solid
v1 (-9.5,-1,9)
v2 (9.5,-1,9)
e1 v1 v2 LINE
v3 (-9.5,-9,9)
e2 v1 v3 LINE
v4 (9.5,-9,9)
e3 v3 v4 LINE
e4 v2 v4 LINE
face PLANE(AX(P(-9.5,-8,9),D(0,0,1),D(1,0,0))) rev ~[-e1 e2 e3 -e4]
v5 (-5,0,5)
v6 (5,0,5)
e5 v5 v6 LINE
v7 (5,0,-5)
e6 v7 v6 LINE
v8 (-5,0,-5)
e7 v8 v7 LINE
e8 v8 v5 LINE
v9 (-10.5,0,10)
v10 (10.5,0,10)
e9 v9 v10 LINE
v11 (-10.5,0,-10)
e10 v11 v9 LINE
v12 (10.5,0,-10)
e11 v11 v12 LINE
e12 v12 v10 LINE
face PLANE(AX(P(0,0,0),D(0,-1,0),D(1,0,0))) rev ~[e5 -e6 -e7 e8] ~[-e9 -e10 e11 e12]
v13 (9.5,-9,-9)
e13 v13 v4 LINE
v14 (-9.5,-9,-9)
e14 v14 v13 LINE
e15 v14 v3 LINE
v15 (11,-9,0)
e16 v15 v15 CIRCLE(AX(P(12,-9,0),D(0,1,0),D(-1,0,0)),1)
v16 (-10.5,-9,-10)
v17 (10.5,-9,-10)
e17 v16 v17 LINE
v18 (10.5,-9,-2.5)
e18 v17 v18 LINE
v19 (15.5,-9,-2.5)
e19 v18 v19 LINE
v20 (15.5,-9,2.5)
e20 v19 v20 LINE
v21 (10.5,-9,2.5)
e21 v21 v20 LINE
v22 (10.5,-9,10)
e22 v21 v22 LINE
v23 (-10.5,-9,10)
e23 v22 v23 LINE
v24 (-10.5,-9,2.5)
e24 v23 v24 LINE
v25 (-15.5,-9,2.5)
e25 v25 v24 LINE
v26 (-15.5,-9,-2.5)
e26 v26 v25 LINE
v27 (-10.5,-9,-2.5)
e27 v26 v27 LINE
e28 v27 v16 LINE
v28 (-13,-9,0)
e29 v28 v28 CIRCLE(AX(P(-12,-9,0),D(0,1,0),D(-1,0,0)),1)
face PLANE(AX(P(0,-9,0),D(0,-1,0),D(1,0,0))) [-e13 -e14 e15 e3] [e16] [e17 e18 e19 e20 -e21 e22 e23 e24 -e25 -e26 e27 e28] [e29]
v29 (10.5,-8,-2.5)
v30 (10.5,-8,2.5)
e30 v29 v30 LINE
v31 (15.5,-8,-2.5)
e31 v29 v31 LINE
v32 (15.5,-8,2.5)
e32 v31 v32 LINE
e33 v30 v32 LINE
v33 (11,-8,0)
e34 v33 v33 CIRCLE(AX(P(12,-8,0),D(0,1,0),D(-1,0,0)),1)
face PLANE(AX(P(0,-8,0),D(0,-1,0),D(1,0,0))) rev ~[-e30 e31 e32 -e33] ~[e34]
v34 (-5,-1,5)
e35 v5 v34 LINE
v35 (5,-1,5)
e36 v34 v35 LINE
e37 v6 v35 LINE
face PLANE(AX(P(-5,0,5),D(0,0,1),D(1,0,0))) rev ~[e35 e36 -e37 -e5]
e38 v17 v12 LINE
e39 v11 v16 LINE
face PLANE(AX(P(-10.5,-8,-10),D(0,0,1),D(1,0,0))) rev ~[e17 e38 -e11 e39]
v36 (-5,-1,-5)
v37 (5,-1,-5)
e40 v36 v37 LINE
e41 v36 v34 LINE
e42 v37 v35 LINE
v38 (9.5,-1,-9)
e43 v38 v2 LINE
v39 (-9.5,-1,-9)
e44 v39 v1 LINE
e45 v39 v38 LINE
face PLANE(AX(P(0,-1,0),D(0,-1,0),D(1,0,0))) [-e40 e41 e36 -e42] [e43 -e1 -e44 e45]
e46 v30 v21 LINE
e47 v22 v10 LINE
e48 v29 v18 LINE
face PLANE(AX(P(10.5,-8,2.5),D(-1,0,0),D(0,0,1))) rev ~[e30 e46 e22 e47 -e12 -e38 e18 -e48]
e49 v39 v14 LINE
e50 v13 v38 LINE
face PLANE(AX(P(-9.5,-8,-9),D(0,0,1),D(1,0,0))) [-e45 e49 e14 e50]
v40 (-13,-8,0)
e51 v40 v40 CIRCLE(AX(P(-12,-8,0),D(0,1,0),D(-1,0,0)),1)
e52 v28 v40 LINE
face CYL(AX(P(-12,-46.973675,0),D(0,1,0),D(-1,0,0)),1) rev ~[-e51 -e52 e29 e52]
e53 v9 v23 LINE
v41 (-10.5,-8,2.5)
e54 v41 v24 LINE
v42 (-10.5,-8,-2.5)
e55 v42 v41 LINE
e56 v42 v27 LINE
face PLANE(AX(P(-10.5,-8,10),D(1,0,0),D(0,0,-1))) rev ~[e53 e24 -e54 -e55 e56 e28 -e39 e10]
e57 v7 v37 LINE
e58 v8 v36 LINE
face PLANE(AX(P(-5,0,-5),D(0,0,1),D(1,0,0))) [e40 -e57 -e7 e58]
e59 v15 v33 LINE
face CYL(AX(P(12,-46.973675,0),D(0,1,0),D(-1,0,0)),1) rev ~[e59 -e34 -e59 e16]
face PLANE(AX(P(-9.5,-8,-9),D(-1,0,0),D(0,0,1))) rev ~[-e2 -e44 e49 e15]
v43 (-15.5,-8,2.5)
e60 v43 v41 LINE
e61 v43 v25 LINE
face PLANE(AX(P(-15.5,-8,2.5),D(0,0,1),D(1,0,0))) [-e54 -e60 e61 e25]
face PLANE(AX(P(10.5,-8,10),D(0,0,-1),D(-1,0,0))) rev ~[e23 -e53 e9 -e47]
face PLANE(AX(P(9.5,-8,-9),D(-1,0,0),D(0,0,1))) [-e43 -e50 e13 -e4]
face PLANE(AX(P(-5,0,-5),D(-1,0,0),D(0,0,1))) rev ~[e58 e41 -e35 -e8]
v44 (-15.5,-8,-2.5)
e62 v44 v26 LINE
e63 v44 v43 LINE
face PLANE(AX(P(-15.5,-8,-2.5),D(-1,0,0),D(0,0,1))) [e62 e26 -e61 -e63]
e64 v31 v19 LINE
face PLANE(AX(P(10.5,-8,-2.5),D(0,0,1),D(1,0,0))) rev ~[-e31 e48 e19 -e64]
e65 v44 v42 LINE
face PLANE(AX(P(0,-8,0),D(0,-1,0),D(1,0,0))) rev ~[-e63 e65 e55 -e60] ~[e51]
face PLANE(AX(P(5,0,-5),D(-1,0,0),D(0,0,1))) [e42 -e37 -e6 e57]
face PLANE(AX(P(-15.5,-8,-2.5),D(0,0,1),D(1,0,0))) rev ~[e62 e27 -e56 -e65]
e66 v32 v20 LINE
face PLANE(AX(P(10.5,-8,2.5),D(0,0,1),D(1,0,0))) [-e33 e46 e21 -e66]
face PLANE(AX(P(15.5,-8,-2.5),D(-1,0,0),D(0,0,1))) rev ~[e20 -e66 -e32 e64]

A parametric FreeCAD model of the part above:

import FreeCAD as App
import Part
import Sketcher
from FreeCAD import Vector

doc = App.newDocument("Part")
body = doc.addObject("PartDesign::Body", "Body")

# Sketch on XZ plane
sketch1 = body.newObject("Sketcher::SketchObject", "Sketch")
sketch1.AttachmentSupport = (doc.getObject("XZ_Plane"), [""])
sketch1.MapMode = "FlatFace"
sketch1.addGeometry(Part.LineSegment(Vector(-10, 10, 0), Vector(-10, -10, 0)), False)
sketch1.addGeometry(Part.LineSegment(Vector(-10, -10, 0), Vector(10, -10, 0)), False)
sketch1.addGeometry(Part.LineSegment(Vector(10, -10, 0), Vector(10, 10, 0)), False)
sketch1.addGeometry(Part.LineSegment(Vector(10, 10, 0), Vector(-10, 10, 0)), False)
sketch1.addGeometry(Part.LineSegment(Vector(5, -5, 0), Vector(-5, -5, 0)), False)
sketch1.addGeometry(Part.LineSegment(Vector(-5, -5, 0), Vector(-5, 5, 0)), False)
sketch1.addGeometry(Part.LineSegment(Vector(-5, 5, 0), Vector(5, 5, 0)), False)
sketch1.addGeometry(Part.LineSegment(Vector(5, 5, 0), Vector(5, -5, 0)), False)
sketch1.addConstraint(Sketcher.Constraint("Coincident", 0, 2, 1, 1))
sketch1.addConstraint(Sketcher.Constraint("Coincident", 1, 2, 2, 1))
sketch1.addConstraint(Sketcher.Constraint("Coincident", 2, 2, 3, 1))
sketch1.addConstraint(Sketcher.Constraint("Coincident", 3, 2, 0, 1))
sketch1.addConstraint(Sketcher.Constraint("Coincident", 4, 2, 5, 1))
sketch1.addConstraint(Sketcher.Constraint("Coincident", 5, 2, 6, 1))
sketch1.addConstraint(Sketcher.Constraint("Coincident", 6, 2, 7, 1))
sketch1.addConstraint(Sketcher.Constraint("Coincident", 7, 2, 4, 1))
sketch1.addConstraint(Sketcher.Constraint("Vertical", 0))
sketch1.addConstraint(Sketcher.Constraint("Horizontal", 1))
sketch1.addConstraint(Sketcher.Constraint("Vertical", 2))
sketch1.addConstraint(Sketcher.Constraint("Horizontal", 3))
sketch1.addConstraint(Sketcher.Constraint("Horizontal", 4))
sketch1.addConstraint(Sketcher.Constraint("Vertical", 5))
sketch1.addConstraint(Sketcher.Constraint("Horizontal", 6))
sketch1.addConstraint(Sketcher.Constraint("Vertical", 7))
sketch1.addConstraint(Sketcher.Constraint("Symmetric", 0, 2, 2, 2, -1, 1))
sketch1.addConstraint(Sketcher.Constraint("Symmetric", 4, 2, 6, 2, -1, 1))
sketch1.addConstraint(Sketcher.Constraint("Equal", 6, 5))
sketch1.addConstraint(Sketcher.Constraint("DistanceX", 1, 1, 1, 2, 21.0))
sketch1.addConstraint(Sketcher.Constraint("DistanceX", 4, 2, 4, 1, 10.0))
sketch1.addConstraint(Sketcher.Constraint("DistanceY", 0, 2, 0, 1, 20.0))
pad1 = body.newObject("PartDesign::Pad", "Pad")
pad1.Profile = sketch1
pad1.Length = 1

# Sketch on XZ plane
sketch2 = body.newObject("Sketcher::SketchObject", "Sketch001")
sketch2.AttachmentSupport = (doc.getObject("XZ_Plane"), [""])
sketch2.MapMode = "FlatFace"
sketch2.AttachmentOffset = App.Placement(Vector(0, 0, 1), App.Rotation())
sketch2.addGeometry(Part.LineSegment(Vector(-10, 10, 0), Vector(-10, -10, 0)), False)
sketch2.addGeometry(Part.LineSegment(Vector(-10, -10, 0), Vector(10, -10, 0)), False)
sketch2.addGeometry(Part.LineSegment(Vector(10, -10, 0), Vector(10, 10, 0)), False)
sketch2.addGeometry(Part.LineSegment(Vector(10, 10, 0), Vector(-10, 10, 0)), False)
sketch2.addGeometry(Part.LineSegment(Vector(10, -9, 0), Vector(-10, -9, 0)), False)
sketch2.addGeometry(Part.LineSegment(Vector(-10, -9, 0), Vector(-10, 9, 0)), False)
sketch2.addGeometry(Part.LineSegment(Vector(-10, 9, 0), Vector(10, 9, 0)), False)
sketch2.addGeometry(Part.LineSegment(Vector(10, 9, 0), Vector(10, -9, 0)), False)
sketch2.addConstraint(Sketcher.Constraint("Coincident", 0, 2, 1, 1))
sketch2.addConstraint(Sketcher.Constraint("Coincident", 1, 2, 2, 1))
sketch2.addConstraint(Sketcher.Constraint("Coincident", 2, 2, 3, 1))
sketch2.addConstraint(Sketcher.Constraint("Coincident", 3, 2, 0, 1))
sketch2.addConstraint(Sketcher.Constraint("Coincident", 4, 2, 5, 1))
sketch2.addConstraint(Sketcher.Constraint("Coincident", 5, 2, 6, 1))
sketch2.addConstraint(Sketcher.Constraint("Coincident", 6, 2, 7, 1))
sketch2.addConstraint(Sketcher.Constraint("Coincident", 7, 2, 4, 1))
sketch2.addConstraint(Sketcher.Constraint("Vertical", 0))
sketch2.addConstraint(Sketcher.Constraint("Horizontal", 1))
sketch2.addConstraint(Sketcher.Constraint("Vertical", 2))
sketch2.addConstraint(Sketcher.Constraint("Horizontal", 3))
sketch2.addConstraint(Sketcher.Constraint("Horizontal", 4))
sketch2.addConstraint(Sketcher.Constraint("Vertical", 5))
sketch2.addConstraint(Sketcher.Constraint("Horizontal", 6))
sketch2.addConstraint(Sketcher.Constraint("Vertical", 7))
sketch2.addConstraint(Sketcher.Constraint("Symmetric", 0, 2, 2, 2, -1, 1))
sketch2.addConstraint(Sketcher.Constraint("Symmetric", 4, 2, 6, 2, -1, 1))
sketch2.addConstraint(Sketcher.Constraint("DistanceX", 1, 1, 1, 2, 21.0))
sketch2.addConstraint(Sketcher.Constraint("DistanceX", 4, 2, 4, 1, 19.0))
sketch2.addConstraint(Sketcher.Constraint("DistanceY", 0, 2, 0, 1, 20.0))
sketch2.addConstraint(Sketcher.Constraint("DistanceY", 5, 1, 5, 2, 18.0))
pad2 = body.newObject("PartDesign::Pad", "Pad001")
pad2.Profile = sketch2
pad2.Length = 7

# Sketch on XZ plane
sketch3 = body.newObject("Sketcher::SketchObject", "Sketch002")
sketch3.AttachmentSupport = (doc.getObject("XZ_Plane"), [""])
sketch3.MapMode = "FlatFace"
sketch3.AttachmentOffset = App.Placement(Vector(0, 0, 8), App.Rotation())
sketch3.addGeometry(Part.LineSegment(Vector(10, 10, 0), Vector(-10, 10, 0)), False)
sketch3.addGeometry(Part.LineSegment(Vector(-10, 10, 0), Vector(-10, 2, 0)), False)
sketch3.addGeometry(Part.LineSegment(Vector(-10, 2, 0), Vector(-16, 2, 0)), False)
sketch3.addGeometry(Part.LineSegment(Vector(-16, 2, 0), Vector(-16, -2, 0)), False)
sketch3.addGeometry(Part.LineSegment(Vector(-16, -2, 0), Vector(-10, -2, 0)), False)
sketch3.addGeometry(Part.LineSegment(Vector(-10, -2, 0), Vector(-10, -10, 0)), False)
sketch3.addGeometry(Part.LineSegment(Vector(-10, -10, 0), Vector(10, -10, 0)), False)
sketch3.addGeometry(Part.LineSegment(Vector(10, -10, 0), Vector(10, -2, 0)), False)
sketch3.addGeometry(Part.LineSegment(Vector(10, -2, 0), Vector(16, -2, 0)), False)
sketch3.addGeometry(Part.LineSegment(Vector(16, -2, 0), Vector(16, 2, 0)), False)
sketch3.addGeometry(Part.LineSegment(Vector(16, 2, 0), Vector(10, 2, 0)), False)
sketch3.addGeometry(Part.LineSegment(Vector(10, 2, 0), Vector(10, 10, 0)), False)
sketch3.addGeometry(Part.LineSegment(Vector(10, -9, 0), Vector(-10, -9, 0)), False)
sketch3.addGeometry(Part.LineSegment(Vector(-10, -9, 0), Vector(-10, 9, 0)), False)
sketch3.addGeometry(Part.LineSegment(Vector(-10, 9, 0), Vector(10, 9, 0)), False)
sketch3.addGeometry(Part.LineSegment(Vector(10, 9, 0), Vector(10, -9, 0)), False)
sketch3.addConstraint(Sketcher.Constraint("Coincident", 0, 2, 1, 1))
sketch3.addConstraint(Sketcher.Constraint("Coincident", 1, 2, 2, 1))
sketch3.addConstraint(Sketcher.Constraint("Coincident", 2, 2, 3, 1))
sketch3.addConstraint(Sketcher.Constraint("Coincident", 3, 2, 4, 1))
sketch3.addConstraint(Sketcher.Constraint("Coincident", 4, 2, 5, 1))
sketch3.addConstraint(Sketcher.Constraint("Coincident", 5, 2, 6, 1))
sketch3.addConstraint(Sketcher.Constraint("Coincident", 6, 2, 7, 1))
sketch3.addConstraint(Sketcher.Constraint("Coincident", 7, 2, 8, 1))
sketch3.addConstraint(Sketcher.Constraint("Coincident", 8, 2, 9, 1))
sketch3.addConstraint(Sketcher.Constraint("Coincident", 9, 2, 10, 1))
sketch3.addConstraint(Sketcher.Constraint("Coincident", 10, 2, 11, 1))
sketch3.addConstraint(Sketcher.Constraint("Coincident", 11, 2, 0, 1))
sketch3.addConstraint(Sketcher.Constraint("Coincident", 12, 2, 13, 1))
sketch3.addConstraint(Sketcher.Constraint("Coincident", 13, 2, 14, 1))
sketch3.addConstraint(Sketcher.Constraint("Coincident", 14, 2, 15, 1))
sketch3.addConstraint(Sketcher.Constraint("Coincident", 15, 2, 12, 1))
sketch3.addConstraint(Sketcher.Constraint("Horizontal", 0))
sketch3.addConstraint(Sketcher.Constraint("Vertical", 1))
sketch3.addConstraint(Sketcher.Constraint("Horizontal", 2))
sketch3.addConstraint(Sketcher.Constraint("Vertical", 3))
sketch3.addConstraint(Sketcher.Constraint("Horizontal", 4))
sketch3.addConstraint(Sketcher.Constraint("Vertical", 5))
sketch3.addConstraint(Sketcher.Constraint("Horizontal", 6))
sketch3.addConstraint(Sketcher.Constraint("Vertical", 7))
sketch3.addConstraint(Sketcher.Constraint("Horizontal", 8))
sketch3.addConstraint(Sketcher.Constraint("Vertical", 9))
sketch3.addConstraint(Sketcher.Constraint("Horizontal", 10))
sketch3.addConstraint(Sketcher.Constraint("Vertical", 11))
sketch3.addConstraint(Sketcher.Constraint("Horizontal", 12))
sketch3.addConstraint(Sketcher.Constraint("Vertical", 13))
sketch3.addConstraint(Sketcher.Constraint("Horizontal", 14))
sketch3.addConstraint(Sketcher.Constraint("Vertical", 15))
sketch3.addConstraint(Sketcher.Constraint("Symmetric", 0, 2, 6, 2, -1, 1))
sketch3.addConstraint(Sketcher.Constraint("Symmetric", 2, 2, 8, 2, -1, 1))
sketch3.addConstraint(Sketcher.Constraint("Symmetric", 4, 2, 10, 2, -1, 1))
sketch3.addConstraint(Sketcher.Constraint("Symmetric", 12, 2, 14, 2, -1, 1))
sketch3.addConstraint(Sketcher.Constraint("Symmetric", 4, 2, 7, 2, -2))
sketch3.addConstraint(Sketcher.Constraint("Equal", 10, 3))
sketch3.addConstraint(Sketcher.Constraint("DistanceX", 0, 2, 0, 1, 21.0))
sketch3.addConstraint(Sketcher.Constraint("DistanceX", 2, 2, 2, 1, 5.0))
sketch3.addConstraint(Sketcher.Constraint("DistanceX", 12, 2, 12, 1, 19.0))
sketch3.addConstraint(Sketcher.Constraint("DistanceY", 13, 1, 13, 2, 18.0))
sketch3.addConstraint(Sketcher.Constraint("DistanceY", 1, 2, 1, 1, 7.5))
pad3 = body.newObject("PartDesign::Pad", "Pad002")
pad3.Profile = sketch3
pad3.Length = 1

# Sketch on XZ plane
sketch4 = body.newObject("Sketcher::SketchObject", "Sketch003")
sketch4.AttachmentSupport = (doc.getObject("XZ_Plane"), [""])
sketch4.MapMode = "FlatFace"
sketch4.AttachmentOffset = App.Placement(Vector(0, 0, 9), App.Rotation())
sketch4.addGeometry(Part.Circle(Vector(-12, 0, 0), Vector(0, 0, 1), 1), False)
sketch4.addGeometry(Part.Circle(Vector(12, 0, 0), Vector(0, 0, 1), 1), False)
sketch4.addConstraint(Sketcher.Constraint("Equal", 0, 1))
sketch4.addConstraint(Sketcher.Constraint("Symmetric", 0, 3, 1, 3, -1, 1))
sketch4.addConstraint(Sketcher.Constraint("PointOnObject", 0, 3, -1))
sketch4.addConstraint(Sketcher.Constraint("Diameter", 0, 2.0))
sketch4.addConstraint(Sketcher.Constraint("DistanceX", 0, 3, -1, 1, 12.0))
doc.recompute()
hole = body.newObject("PartDesign::Hole", "Hole")
hole.Profile = sketch4
hole.ThreadType = "None"
hole.Diameter = 2
hole.DepthType = "ThroughAll"

doc.recompute()
